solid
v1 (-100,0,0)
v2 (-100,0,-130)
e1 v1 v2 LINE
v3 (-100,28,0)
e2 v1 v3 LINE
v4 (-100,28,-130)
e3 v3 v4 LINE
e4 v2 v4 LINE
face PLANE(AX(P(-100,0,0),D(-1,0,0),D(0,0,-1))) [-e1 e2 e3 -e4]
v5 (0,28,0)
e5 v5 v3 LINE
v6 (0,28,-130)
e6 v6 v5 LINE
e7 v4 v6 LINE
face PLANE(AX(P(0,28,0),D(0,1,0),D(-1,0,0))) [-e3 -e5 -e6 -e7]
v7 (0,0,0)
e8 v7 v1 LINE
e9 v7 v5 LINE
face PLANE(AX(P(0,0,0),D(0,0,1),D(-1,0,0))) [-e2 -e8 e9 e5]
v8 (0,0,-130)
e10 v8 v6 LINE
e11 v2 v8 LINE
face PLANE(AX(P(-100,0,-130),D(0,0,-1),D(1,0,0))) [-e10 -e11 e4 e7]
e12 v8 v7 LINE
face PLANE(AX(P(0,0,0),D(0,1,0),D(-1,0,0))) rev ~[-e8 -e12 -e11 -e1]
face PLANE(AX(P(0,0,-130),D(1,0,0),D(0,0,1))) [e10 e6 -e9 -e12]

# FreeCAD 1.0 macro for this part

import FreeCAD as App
import Part
import Sketcher
from FreeCAD import Vector
Q = App.Units.Quantity


def add_polygon(sketch, points):
    """Adds a closed chain of lines whose ends are joined by coincident constraints."""
    first, n = sketch.GeometryCount, len(points)
    for a, b in zip(points, points[1:] + points[:1]):
        sketch.addGeometry(Part.LineSegment(App.Vector(*a, 0), App.Vector(*b, 0)), False)
    for i in range(n):
        sketch.addConstraint(Sketcher.Constraint("Coincident", first + i, 2, first + (i + 1) % n, 1))

doc = App.newDocument("Part")
params = doc.addObject("Spreadsheet::Sheet", "Params")
for row, (alias, value) in enumerate([
    ("sketch1_width", "100 mm"),
    ("sketch1_height", "130 mm"),
    ("pad1_length", "28 mm"),
], start=1):
    params.set(f"A{row}", alias)
    params.set(f"B{row}", "=" + value)
    params.setAlias(f"B{row}", alias)

body = doc.addObject("PartDesign::Body", "Body")

# Sketch on XZ plane
sketch1 = body.newObject("Sketcher::SketchObject", "Sketch")
sketch1.AttachmentSupport = (doc.getObject("XZ_Plane"), [""])
sketch1.MapMode = "FlatFace"
add_polygon(sketch1, [(-100, 0), (0, 0), (0, -130), (-100, -130)])  # lines 0-3
sketch1.addConstraint([
    Sketcher.Constraint("Horizontal", 0),
    Sketcher.Constraint("Vertical", 1),
    Sketcher.Constraint("Horizontal", 2),
    Sketcher.Constraint("Vertical", 3),
    Sketcher.Constraint("Coincident", 0, 2, -1, 1),
    Sketcher.Constraint("DistanceX", 0, 1, 0, 2, Q("100 mm")),
    Sketcher.Constraint("DistanceY", 1, 2, 1, 1, Q("130 mm")),
])
sketch1.setExpression("Constraints[9]", "Params.sketch1_width")
sketch1.setExpression("Constraints[10]", "Params.sketch1_height")
pad1 = body.newObject("PartDesign::Pad", "Pad")
pad1.Profile = sketch1
pad1.setExpression("Length", "Params.pad1_length")
pad1.Reversed = True

doc.recompute()
